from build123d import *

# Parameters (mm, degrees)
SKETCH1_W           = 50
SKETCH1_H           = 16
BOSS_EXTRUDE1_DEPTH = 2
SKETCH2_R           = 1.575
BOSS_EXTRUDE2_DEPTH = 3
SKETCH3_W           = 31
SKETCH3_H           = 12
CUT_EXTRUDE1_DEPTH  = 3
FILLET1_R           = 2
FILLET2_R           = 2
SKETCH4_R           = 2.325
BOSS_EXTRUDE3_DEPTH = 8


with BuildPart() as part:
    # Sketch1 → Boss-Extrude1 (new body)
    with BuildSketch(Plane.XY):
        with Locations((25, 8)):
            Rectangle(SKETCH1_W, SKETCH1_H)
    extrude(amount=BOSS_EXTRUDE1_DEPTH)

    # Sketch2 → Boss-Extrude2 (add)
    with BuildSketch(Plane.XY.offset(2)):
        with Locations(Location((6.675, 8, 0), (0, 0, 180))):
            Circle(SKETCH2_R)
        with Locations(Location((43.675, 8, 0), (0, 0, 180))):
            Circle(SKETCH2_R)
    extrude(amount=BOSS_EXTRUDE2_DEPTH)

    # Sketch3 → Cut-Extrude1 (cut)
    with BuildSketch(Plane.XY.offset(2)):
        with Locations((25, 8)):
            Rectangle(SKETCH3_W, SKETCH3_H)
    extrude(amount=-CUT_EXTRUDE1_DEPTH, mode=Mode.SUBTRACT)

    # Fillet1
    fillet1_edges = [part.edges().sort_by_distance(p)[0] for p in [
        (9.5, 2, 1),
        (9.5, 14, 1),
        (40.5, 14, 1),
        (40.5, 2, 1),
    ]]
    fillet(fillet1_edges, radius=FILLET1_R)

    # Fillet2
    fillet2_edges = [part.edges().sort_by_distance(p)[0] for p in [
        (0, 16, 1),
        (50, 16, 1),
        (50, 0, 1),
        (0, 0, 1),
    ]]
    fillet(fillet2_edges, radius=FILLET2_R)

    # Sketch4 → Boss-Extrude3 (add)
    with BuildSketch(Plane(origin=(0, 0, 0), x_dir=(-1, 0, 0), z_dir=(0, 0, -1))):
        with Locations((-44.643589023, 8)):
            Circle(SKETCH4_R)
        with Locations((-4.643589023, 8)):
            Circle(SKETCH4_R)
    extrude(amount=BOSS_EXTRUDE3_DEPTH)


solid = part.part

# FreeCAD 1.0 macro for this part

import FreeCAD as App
import Part
import Sketcher
from FreeCAD import Vector
Q = App.Units.Quantity


def edges_at(feature, points):
    """Names of the edges that pass closest to the given points."""
    edges = feature.Shape.Edges
    near = lambda p: min(range(len(edges)), key=lambda i: edges[i].distToShape(Part.Vertex(*p))[0])
    return sorted({f"Edge{near(p) + 1}" for p in points})


def add_polygon(sketch, points):
    """Adds a closed chain of lines whose ends are joined by coincident constraints."""
    first, n = sketch.GeometryCount, len(points)
    for a, b in zip(points, points[1:] + points[:1]):
        sketch.addGeometry(Part.LineSegment(App.Vector(*a, 0), App.Vector(*b, 0)), False)
    for i in range(n):
        sketch.addConstraint(Sketcher.Constraint("Coincident", first + i, 2, first + (i + 1) % n, 1))

doc = App.newDocument("Part")
params = doc.addObject("Spreadsheet::Sheet", "Params")
for row, (alias, value) in enumerate([
    ("sketch1_width", "50 mm"),
    ("sketch1_height", "16 mm"),
    ("pad1_length", "2 mm"),
    ("sketch2_diameter", "3.15 mm"),
    ("pad2_length", "3 mm"),
    ("sketch3_width", "31 mm"),
    ("sketch3_height", "12 mm"),
    ("pocket1_length", "3 mm"),
    ("fillet_radius", "2 mm"),
    ("fillet2_radius", "2 mm"),
    ("sketch4_diameter", "4.65 mm"),
    ("pad3_length", "8 mm"),
], start=1):
    params.set(f"A{row}", alias)
    params.set(f"B{row}", "=" + value)
    params.setAlias(f"B{row}", alias)

body = doc.addObject("PartDesign::Body", "Body")

# Sketch on XY plane
sketch1 = body.newObject("Sketcher::SketchObject", "Sketch")
sketch1.AttachmentSupport = (doc.getObject("XY_Plane"), [""])
sketch1.MapMode = "FlatFace"
add_polygon(sketch1, [(0, 16), (0, 0), (50, 0), (50, 16)])  # lines 0-3
sketch1.addConstraint([
    Sketcher.Constraint("Vertical", 0),
    Sketcher.Constraint("Horizontal", 1),
    Sketcher.Constraint("Vertical", 2),
    Sketcher.Constraint("Horizontal", 3),
    Sketcher.Constraint("Coincident", 0, 2, -1, 1),
    Sketcher.Constraint("DistanceX", 1, 1, 1, 2, Q("50 mm")),
    Sketcher.Constraint("DistanceY", 0, 2, 0, 1, Q("16 mm")),
])
sketch1.setExpression("Constraints[9]", "Params.sketch1_width")
sketch1.setExpression("Constraints[10]", "Params.sketch1_height")
pad1 = body.newObject("PartDesign::Pad", "Pad")
pad1.Profile = sketch1
pad1.setExpression("Length", "Params.pad1_length")

# Sketch on XY plane
sketch2 = body.newObject("Sketcher::SketchObject", "Sketch001")
sketch2.AttachmentSupport = (doc.getObject("XY_Plane"), [""])
sketch2.MapMode = "FlatFace"
sketch2.AttachmentOffset = App.Placement(Vector(0, 0, 2), App.Rotation())
sketch2.addGeometry([
    Part.Circle(Vector(6.675, 8, 0), Vector(0, 0, 1), 1.575),
    Part.Circle(Vector(43.675, 8, 0), Vector(0, 0, 1), 1.575),
], False)
sketch2.addConstraint([
    Sketcher.Constraint("Equal", 0, 1),
    Sketcher.Constraint("Horizontal", 0, 3, 1, 3),
    Sketcher.Constraint("Diameter", 0, Q("3.15 mm")),
    Sketcher.Constraint("DistanceY", -1, 1, 0, 3, Q("8 mm")),
    Sketcher.Constraint("DistanceX", 0, 3, 1, 3, Q("37 mm")),
    Sketcher.Constraint("DistanceX", -1, 1, 0, 3, Q("6.675 mm")),
])
sketch2.setExpression("Constraints[2]", "Params.sketch2_diameter")
pad2 = body.newObject("PartDesign::Pad", "Pad001")
pad2.Profile = sketch2
pad2.setExpression("Length", "Params.pad2_length")

# Sketch on XY plane
sketch3 = body.newObject("Sketcher::SketchObject", "Sketch002")
sketch3.AttachmentSupport = (doc.getObject("XY_Plane"), [""])
sketch3.MapMode = "FlatFace"
sketch3.AttachmentOffset = App.Placement(Vector(0, 0, 2), App.Rotation())
add_polygon(sketch3, [(9.5, 14), (9.5, 2), (40.5, 2), (40.5, 14)])  # lines 0-3
sketch3.addConstraint([
    Sketcher.Constraint("Vertical", 0),
    Sketcher.Constraint("Horizontal", 1),
    Sketcher.Constraint("Vertical", 2),
    Sketcher.Constraint("Horizontal", 3),
    Sketcher.Constraint("DistanceX", 1, 1, 1, 2, Q("31 mm")),
    Sketcher.Constraint("DistanceY", 0, 2, 0, 1, Q("12 mm")),
    Sketcher.Constraint("DistanceY", -1, 1, 0, 2, Q("2 mm")),
    Sketcher.Constraint("DistanceX", -1, 1, 0, 2, Q("9.5 mm")),
])
sketch3.setExpression("Constraints[8]", "Params.sketch3_width")
sketch3.setExpression("Constraints[9]", "Params.sketch3_height")
pocket1 = body.newObject("PartDesign::Pocket", "Pocket")
pocket1.Profile = sketch3
pocket1.setExpression("Length", "Params.pocket1_length")
doc.recompute()

fillet = body.newObject("PartDesign::Fillet", "Fillet")
fillet.Base = (pocket1, edges_at(pocket1, [
    (9.5, 2, 1),
    (9.5, 14, 1),
    (40.5, 14, 1),
    (40.5, 2, 1),
]))
fillet.setExpression("Radius", "Params.fillet_radius")
doc.recompute()

fillet2 = body.newObject("PartDesign::Fillet", "Fillet001")
fillet2.Base = (fillet, edges_at(fillet, [
    (0, 16, 1),
    (50, 16, 1),
    (50, 0, 1),
    (0, 0, 1),
]))
fillet2.setExpression("Radius", "Params.fillet2_radius")

# Sketch on XY plane
sketch4 = body.newObject("Sketcher::SketchObject", "Sketch003")
sketch4.AttachmentSupport = (doc.getObject("XY_Plane"), [""])
sketch4.MapMode = "FlatFace"
sketch4.addGeometry([
    Part.Circle(Vector(44.643589, 8, 0), Vector(0, 0, 1), 2.325),
    Part.Circle(Vector(4.643589, 8, 0), Vector(0, 0, 1), 2.325),
], False)
sketch4.addConstraint([
    Sketcher.Constraint("Equal", 0, 1),
    Sketcher.Constraint("Horizontal", 0, 3, 1, 3),
    Sketcher.Constraint("Diameter", 0, Q("4.65 mm")),
    Sketcher.Constraint("DistanceY", -1, 1, 0, 3, Q("8 mm")),
    Sketcher.Constraint("DistanceX", 1, 3, 0, 3, Q("40 mm")),
    Sketcher.Constraint("DistanceX", -1, 1, 0, 3, Q("44.643589 mm")),
])
sketch4.setExpression("Constraints[2]", "Params.sketch4_diameter")
pad3 = body.newObject("PartDesign::Pad", "Pad002")
pad3.Profile = sketch4
pad3.setExpression("Length", "Params.pad3_length")
pad3.Reversed = True

doc.recompute()
